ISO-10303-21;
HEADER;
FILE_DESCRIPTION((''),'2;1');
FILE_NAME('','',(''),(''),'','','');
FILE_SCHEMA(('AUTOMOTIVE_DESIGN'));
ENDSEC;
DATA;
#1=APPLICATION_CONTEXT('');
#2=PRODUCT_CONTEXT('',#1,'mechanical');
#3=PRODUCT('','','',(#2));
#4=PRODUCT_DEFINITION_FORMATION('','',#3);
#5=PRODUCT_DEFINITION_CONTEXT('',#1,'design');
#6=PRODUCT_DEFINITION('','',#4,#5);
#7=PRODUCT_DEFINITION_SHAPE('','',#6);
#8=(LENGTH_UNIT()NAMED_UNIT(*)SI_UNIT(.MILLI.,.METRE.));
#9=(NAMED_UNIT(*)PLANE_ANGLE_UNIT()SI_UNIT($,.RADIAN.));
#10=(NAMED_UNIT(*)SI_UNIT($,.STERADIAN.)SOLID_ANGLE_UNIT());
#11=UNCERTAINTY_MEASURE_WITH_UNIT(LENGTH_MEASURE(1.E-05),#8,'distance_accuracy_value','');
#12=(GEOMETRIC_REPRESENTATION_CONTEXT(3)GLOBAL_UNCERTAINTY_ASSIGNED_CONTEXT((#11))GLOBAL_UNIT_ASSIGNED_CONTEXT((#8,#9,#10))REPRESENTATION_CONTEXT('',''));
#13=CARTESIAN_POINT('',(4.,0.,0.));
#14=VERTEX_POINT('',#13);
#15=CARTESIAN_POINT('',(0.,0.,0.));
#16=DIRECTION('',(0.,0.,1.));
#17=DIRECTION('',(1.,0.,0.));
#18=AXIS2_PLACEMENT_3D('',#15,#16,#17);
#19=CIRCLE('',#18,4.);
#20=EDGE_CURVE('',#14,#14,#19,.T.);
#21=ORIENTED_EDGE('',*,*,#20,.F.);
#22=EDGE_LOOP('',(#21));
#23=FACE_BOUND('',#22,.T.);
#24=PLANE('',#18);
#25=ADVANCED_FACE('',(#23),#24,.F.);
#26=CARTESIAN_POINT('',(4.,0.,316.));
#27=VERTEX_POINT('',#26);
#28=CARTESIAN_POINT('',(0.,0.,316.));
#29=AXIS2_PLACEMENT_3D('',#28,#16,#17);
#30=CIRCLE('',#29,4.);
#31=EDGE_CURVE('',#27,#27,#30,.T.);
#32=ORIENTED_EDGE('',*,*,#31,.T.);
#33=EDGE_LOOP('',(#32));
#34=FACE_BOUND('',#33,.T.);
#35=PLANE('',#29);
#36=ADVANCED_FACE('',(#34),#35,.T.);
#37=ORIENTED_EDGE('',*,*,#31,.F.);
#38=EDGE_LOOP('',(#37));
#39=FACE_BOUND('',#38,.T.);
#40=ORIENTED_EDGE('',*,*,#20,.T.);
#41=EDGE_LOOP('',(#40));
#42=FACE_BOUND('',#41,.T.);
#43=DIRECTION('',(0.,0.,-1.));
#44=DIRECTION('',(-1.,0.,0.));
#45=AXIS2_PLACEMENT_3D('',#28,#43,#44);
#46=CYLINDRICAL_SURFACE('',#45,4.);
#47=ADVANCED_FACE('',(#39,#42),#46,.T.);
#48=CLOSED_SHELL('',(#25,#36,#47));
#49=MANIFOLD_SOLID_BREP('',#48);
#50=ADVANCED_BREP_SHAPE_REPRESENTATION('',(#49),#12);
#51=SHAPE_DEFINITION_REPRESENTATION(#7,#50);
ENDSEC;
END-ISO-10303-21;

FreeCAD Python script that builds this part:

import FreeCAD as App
import Part
import Sketcher

V = App.Vector

doc = App.newDocument("Part")
body = doc.addObject("PartDesign::Body", "Body")

# Sketch on XY plane
sketch1 = body.newObject("Sketcher::SketchObject", "Sketch")
sketch1.AttachmentSupport = (doc.getObject("XY_Plane"), [""])
sketch1.MapMode = "FlatFace"
sketch1.addGeometry(Part.Circle(V(0, 0, 0), V(0, 0, 1), 4), False)
sketch1.addConstraint([
    Sketcher.Constraint("Coincident", 0, 3, -1, 1),
    Sketcher.Constraint("Diameter", 0, 8.0),
])
pad1 = body.newObject("PartDesign::Pad", "Pad")
pad1.Profile = sketch1
pad1.Length = 316

doc.recompute()
